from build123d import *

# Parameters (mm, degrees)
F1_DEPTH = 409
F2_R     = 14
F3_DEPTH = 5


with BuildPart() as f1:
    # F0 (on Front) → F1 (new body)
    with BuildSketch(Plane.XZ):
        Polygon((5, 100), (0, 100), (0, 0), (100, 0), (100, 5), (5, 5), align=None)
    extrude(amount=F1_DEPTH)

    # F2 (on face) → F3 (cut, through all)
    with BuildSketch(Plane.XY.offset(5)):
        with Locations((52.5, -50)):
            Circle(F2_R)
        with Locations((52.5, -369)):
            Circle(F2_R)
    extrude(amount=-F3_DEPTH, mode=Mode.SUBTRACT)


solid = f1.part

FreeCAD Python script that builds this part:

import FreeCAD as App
import Part
import Sketcher
from FreeCAD import Vector


def add_polygon(sketch, points):
    """Adds a closed chain of lines whose ends are joined by coincident constraints."""
    first, n = sketch.GeometryCount, len(points)
    for a, b in zip(points, points[1:] + points[:1]):
        sketch.addGeometry(Part.LineSegment(App.Vector(*a, 0), App.Vector(*b, 0)), False)
    for i in range(n):
        sketch.addConstraint(Sketcher.Constraint("Coincident", first + i, 2, first + (i + 1) % n, 1))

doc = App.newDocument("Part")
body = doc.addObject("PartDesign::Body", "Body")

# Sketch on XZ plane
sketch1 = body.newObject("Sketcher::SketchObject", "Sketch")
sketch1.AttachmentSupport = (doc.getObject("XZ_Plane"), [""])
sketch1.MapMode = "FlatFace"
add_polygon(sketch1, [(5, 100), (0, 100), (0, 0), (100, 0), (100, 5), (5, 5)])  # lines 0-5
sketch1.addConstraint([
    Sketcher.Constraint("Horizontal", 0),
    Sketcher.Constraint("Vertical", 1),
    Sketcher.Constraint("Horizontal", 2),
    Sketcher.Constraint("Vertical", 3),
    Sketcher.Constraint("Horizontal", 4),
    Sketcher.Constraint("Vertical", 5),
    Sketcher.Constraint("Coincident", 1, 2, -1, 1),
    Sketcher.Constraint("Equal", 2, 1),
    Sketcher.Constraint("Equal", 0, 3),
    Sketcher.Constraint("DistanceX", 0, 2, 0, 1, 5.0),
    Sketcher.Constraint("DistanceX", 2, 1, 2, 2, 100.0),
])
pad1 = body.newObject("PartDesign::Pad", "Pad")
pad1.Profile = sketch1
pad1.Length = 409

# Sketch on XY plane
sketch2 = body.newObject("Sketcher::SketchObject", "Sketch001")
sketch2.AttachmentSupport = (doc.getObject("XY_Plane"), [""])
sketch2.MapMode = "FlatFace"
sketch2.AttachmentOffset = App.Placement(Vector(0, 0, 5), App.Rotation())
sketch2.addGeometry([
    Part.Circle(Vector(52, -50, 0), Vector(0, 0, 1), 14),
    Part.Circle(Vector(52, -369, 0), Vector(0, 0, 1), 14),
], False)
sketch2.addConstraint([
    Sketcher.Constraint("Equal", 0, 1),
    Sketcher.Constraint("Vertical", 0, 3, 1, 3),
    Sketcher.Constraint("Diameter", 0, 28.0),
    Sketcher.Constraint("DistanceY", 0, 3, -1, 1, 50.0),
    Sketcher.Constraint("DistanceY", 1, 3, -1, 1, 369.0),
    Sketcher.Constraint("DistanceX", -1, 1, 0, 3, 52.5),
])
pocket1 = body.newObject("PartDesign::Pocket", "Pocket")
pocket1.Profile = sketch2
pocket1.Type = "ThroughAll"

doc.recompute()
